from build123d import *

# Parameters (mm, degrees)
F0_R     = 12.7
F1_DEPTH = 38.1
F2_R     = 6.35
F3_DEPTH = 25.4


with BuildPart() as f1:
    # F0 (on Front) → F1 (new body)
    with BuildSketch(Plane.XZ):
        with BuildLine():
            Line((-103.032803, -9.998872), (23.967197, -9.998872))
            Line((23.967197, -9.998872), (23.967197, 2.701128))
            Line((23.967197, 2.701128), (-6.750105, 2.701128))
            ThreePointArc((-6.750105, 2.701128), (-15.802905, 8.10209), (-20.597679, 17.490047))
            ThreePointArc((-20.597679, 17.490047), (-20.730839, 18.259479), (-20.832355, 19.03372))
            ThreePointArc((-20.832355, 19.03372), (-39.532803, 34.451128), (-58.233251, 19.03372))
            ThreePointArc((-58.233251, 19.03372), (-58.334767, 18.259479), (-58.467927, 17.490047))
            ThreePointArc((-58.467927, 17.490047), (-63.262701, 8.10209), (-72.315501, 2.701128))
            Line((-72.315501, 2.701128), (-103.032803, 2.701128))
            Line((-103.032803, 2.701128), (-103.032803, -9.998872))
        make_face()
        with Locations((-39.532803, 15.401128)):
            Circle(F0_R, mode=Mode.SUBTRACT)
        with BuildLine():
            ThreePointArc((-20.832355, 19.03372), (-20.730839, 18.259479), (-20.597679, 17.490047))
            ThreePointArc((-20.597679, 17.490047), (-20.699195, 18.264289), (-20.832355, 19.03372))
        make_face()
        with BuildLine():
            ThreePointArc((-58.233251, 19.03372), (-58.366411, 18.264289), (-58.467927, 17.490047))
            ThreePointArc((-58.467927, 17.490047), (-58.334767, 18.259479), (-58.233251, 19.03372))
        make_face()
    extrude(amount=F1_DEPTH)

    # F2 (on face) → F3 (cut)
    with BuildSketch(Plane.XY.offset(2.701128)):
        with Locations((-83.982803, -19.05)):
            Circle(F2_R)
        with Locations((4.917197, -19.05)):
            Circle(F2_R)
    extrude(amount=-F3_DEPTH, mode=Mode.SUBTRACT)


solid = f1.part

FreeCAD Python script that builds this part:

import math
import FreeCAD as App
import Part
import Sketcher

V = App.Vector
Q = App.Units.Quantity

doc = App.newDocument("Part")
params = doc.addObject("Spreadsheet::Sheet", "Params")
for row, (alias, value) in enumerate([
    ("sketch1_diameter", "1 in"),
    ("sketch1_width", "5 in"),
    ("sketch1_radius", "0.75 in"),
    ("sketch1_radius2", "0.75 in"),
    ("sketch1_radius3", "0.75 in"),
    ("pad1_length", "1.5 in"),
    ("sketch2_diameter", "0.5 in"),
    ("pocket1_length", "1 in"),
], start=1):
    params.set(f"A{row}", alias)
    params.set(f"B{row}", "=" + value)
    params.setAlias(f"B{row}", alias)

body = doc.addObject("PartDesign::Body", "Body")

# Sketch on XZ plane
sketch1 = body.newObject("Sketcher::SketchObject", "Sketch")
sketch1.AttachmentSupport = (doc.getObject("XZ_Plane"), [""])
sketch1.MapMode = "FlatFace"
sketch1.addGeometry([
    Part.LineSegment(V(-103.032803, -9.998872, 0), V(23.967197, -9.998872, 0)),  # 0
    Part.LineSegment(V(23.967197, -9.998872, 0), V(23.967197, 2.701128, 0)),  # 1
    Part.LineSegment(V(23.967197, 2.701128, 0), V(-6.750105, 2.701128, 0)),  # 2
    Part.ArcOfCircle(Part.Circle(V(-1.897231, 21.12264, 0), V(0, 0, 1), 19.049999), math.radians(-169.007104), math.radians(-104.758419)),  # 3
    Part.ArcOfCircle(Part.Circle(V(-39.533128, 15.401071, 0), V(0, 0, 1), 19.050329), math.radians(6.295465), math.radians(10.992876)),  # 4
    Part.ArcOfCircle(Part.Circle(V(-39.532803, 15.401129, 0), V(0, 0, 1), 19.049999), math.radians(10.992892), math.radians(169.007108)),  # 5
    Part.ArcOfCircle(Part.Circle(V(-39.532478, 15.401071, 0), V(0, 0, 1), 19.050329), math.radians(169.007124), math.radians(173.704535)),  # 6
    Part.ArcOfCircle(Part.Circle(V(-77.168375, 21.12264, 0), V(0, 0, 1), 19.049999), math.radians(-75.241581), math.radians(-10.992896)),  # 7
    Part.LineSegment(V(-72.315501, 2.701128, 0), V(-103.032803, 2.701128, 0)),  # 8
    Part.LineSegment(V(-103.032803, 2.701128, 0), V(-103.032803, -9.998872, 0)),  # 9
    Part.Circle(V(-39.532803, 15.401128, 0), V(0, 0, 1), 12.7),  # 10
], False)
sketch1.addConstraint([
    Sketcher.Constraint("Coincident", 0, 2, 1, 1),
    Sketcher.Constraint("Coincident", 1, 2, 2, 1),
    Sketcher.Constraint("Coincident", 2, 2, 3, 2),
    Sketcher.Constraint("Coincident", 3, 1, 4, 1),
    Sketcher.Constraint("Coincident", 4, 2, 5, 1),
    Sketcher.Constraint("Coincident", 5, 2, 6, 1),
    Sketcher.Constraint("Coincident", 6, 2, 7, 2),
    Sketcher.Constraint("Coincident", 7, 1, 8, 1),
    Sketcher.Constraint("Coincident", 8, 2, 9, 1),
    Sketcher.Constraint("Coincident", 9, 2, 0, 1),
    Sketcher.Constraint("Horizontal", 0),
    Sketcher.Constraint("Vertical", 1),
    Sketcher.Constraint("Horizontal", 2),
    Sketcher.Constraint("Horizontal", 8),
    Sketcher.Constraint("Vertical", 9),
    Sketcher.Constraint("Coincident", 10, 3, 5, 3),
    Sketcher.Constraint("Diameter", 10, Q("1 in")),
    Sketcher.Constraint("DistanceX", 0, 1, 0, 2, Q("5 in")),
    Sketcher.Constraint("Radius", 3, Q("0.75 in")),
    Sketcher.Constraint("Radius", 5, Q("0.75 in")),
    Sketcher.Constraint("Radius", 7, Q("0.75 in")),
    Sketcher.Constraint("DistanceY", 1, 1, 1, 2, Q("0.5 in")),
    Sketcher.Constraint("DistanceY", 9, 2, 9, 1, Q("0.5 in")),
    Sketcher.Constraint("DistanceY", 0, 2, 10, 3, Q("1 in")),
    Sketcher.Constraint("DistanceX", 10, 3, 0, 2, Q("2.5 in")),
    Sketcher.Constraint("Radius", 4, Q("19.050329 mm")),
    Sketcher.Constraint("Radius", 6, Q("19.050329 mm")),
    Sketcher.Constraint("DistanceX", 2, 2, 2, 1, Q("30.717302 mm")),
    Sketcher.Constraint("DistanceY", -1, 1, 3, 3, Q("0.8316 in")),
    Sketcher.Constraint("DistanceY", -1, 1, 7, 3, Q("0.8316 in")),
    Sketcher.Constraint("DistanceX", 7, 1, -1, 1, Q("72.315501 mm")),
    Sketcher.Constraint("DistanceX", 6, 3, 3, 1, Q("18.934799 mm")),
    Sketcher.Constraint("DistanceX", 6, 2, 4, 3, Q("18.934799 mm")),
    Sketcher.Constraint("DistanceX", 3, 3, -1, 1, Q("1.897231 mm")),
    Sketcher.Constraint("DistanceY", -1, 1, 4, 3, Q("15.401071 mm")),
    Sketcher.Constraint("DistanceY", -1, 1, 4, 2, Q("19.03372 mm")),
    Sketcher.Constraint("DistanceX", 5, 2, -1, 1, Q("58.233251 mm")),
])
sketch1.setExpression("Constraints[16]", "Params.sketch1_diameter")
sketch1.setExpression("Constraints[17]", "Params.sketch1_width")
sketch1.setExpression("Constraints[18]", "Params.sketch1_radius")
sketch1.setExpression("Constraints[19]", "Params.sketch1_radius2")
sketch1.setExpression("Constraints[20]", "Params.sketch1_radius3")
pad1 = body.newObject("PartDesign::Pad", "Pad")
pad1.Profile = sketch1
pad1.setExpression("Length", "Params.pad1_length")

# Sketch on XY plane
sketch2 = body.newObject("Sketcher::SketchObject", "Sketch001")
sketch2.AttachmentSupport = (doc.getObject("XY_Plane"), [""])
sketch2.MapMode = "FlatFace"
sketch2.AttachmentOffset = App.Placement(V(0, 0, 2.701128), App.Rotation())
sketch2.addGeometry([
    Part.Circle(V(-84, -19, 0), V(0, 0, 1), 6),
    Part.Circle(V(5, -19, 0), V(0, 0, 1), 6),
], False)
sketch2.addConstraint([
    Sketcher.Constraint("Equal", 0, 1),
    Sketcher.Constraint("Horizontal", 0, 3, 1, 3),
    Sketcher.Constraint("Diameter", 0, Q("0.5 in")),
    Sketcher.Constraint("DistanceX", 0, 3, 1, 3, Q("3.5 in")),
    Sketcher.Constraint("DistanceY", 0, 3, -1, 1, Q("0.75 in")),
    Sketcher.Constraint("DistanceX", 0, 3, -1, 1, Q("83.982803 mm")),
])
sketch2.setExpression("Constraints[2]", "Params.sketch2_diameter")
pocket1 = body.newObject("PartDesign::Pocket", "Pocket")
pocket1.Profile = sketch2
pocket1.setExpression("Length", "Params.pocket1_length")

doc.recompute()
